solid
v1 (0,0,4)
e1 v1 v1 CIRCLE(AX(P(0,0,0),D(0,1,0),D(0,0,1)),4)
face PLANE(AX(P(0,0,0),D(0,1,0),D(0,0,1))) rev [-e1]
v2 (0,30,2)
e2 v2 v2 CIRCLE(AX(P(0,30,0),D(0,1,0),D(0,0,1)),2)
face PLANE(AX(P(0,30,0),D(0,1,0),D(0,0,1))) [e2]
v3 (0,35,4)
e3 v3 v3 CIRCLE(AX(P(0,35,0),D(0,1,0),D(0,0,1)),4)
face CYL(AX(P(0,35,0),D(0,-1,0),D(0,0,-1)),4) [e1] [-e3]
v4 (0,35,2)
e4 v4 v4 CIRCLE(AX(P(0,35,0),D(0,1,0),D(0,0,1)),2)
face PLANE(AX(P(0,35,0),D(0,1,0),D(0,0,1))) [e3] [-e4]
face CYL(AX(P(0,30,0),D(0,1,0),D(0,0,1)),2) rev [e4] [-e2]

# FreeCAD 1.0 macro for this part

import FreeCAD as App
import Part
import Sketcher
from FreeCAD import Vector

doc = App.newDocument("Part")
body = doc.addObject("PartDesign::Body", "Body")

sketch1 = body.newObject("Sketcher::SketchObject", "Sketch")
sketch1.AttachmentSupport = (doc.getObject("XZ_Plane"), [""])
sketch1.MapMode = "FlatFace"
sketch1.addGeometry(Part.Circle(Vector(0, 0, 0), Vector(0, 0, 1), 4), False)
sketch1.addConstraint(Sketcher.Constraint("Coincident", 0, 3, -1, 1))
sketch1.addConstraint(Sketcher.Constraint("Diameter", 0, 8.0))
pad1 = body.newObject("PartDesign::Pad", "Pad")
pad1.Profile = sketch1
pad1.Length = 35
pad1.Reversed = True

sketch2 = body.newObject("Sketcher::SketchObject", "Sketch001")
sketch2.AttachmentSupport = (doc.getObject("XZ_Plane"), [""])
sketch2.MapMode = "FlatFace"
sketch2.AttachmentOffset = App.Placement(Vector(0, 0, -35), App.Rotation())
sketch2.addGeometry(Part.Circle(Vector(0, 0, 0), Vector(0, 0, 1), 2), False)
sketch2.addConstraint(Sketcher.Constraint("Coincident", 0, 3, -1, 1))
sketch2.addConstraint(Sketcher.Constraint("Diameter", 0, 4.0))
pocket1 = body.newObject("PartDesign::Pocket", "Pocket")
pocket1.Profile = sketch2
pocket1.Length = 5
pocket1.Reversed = True

doc.recompute()
